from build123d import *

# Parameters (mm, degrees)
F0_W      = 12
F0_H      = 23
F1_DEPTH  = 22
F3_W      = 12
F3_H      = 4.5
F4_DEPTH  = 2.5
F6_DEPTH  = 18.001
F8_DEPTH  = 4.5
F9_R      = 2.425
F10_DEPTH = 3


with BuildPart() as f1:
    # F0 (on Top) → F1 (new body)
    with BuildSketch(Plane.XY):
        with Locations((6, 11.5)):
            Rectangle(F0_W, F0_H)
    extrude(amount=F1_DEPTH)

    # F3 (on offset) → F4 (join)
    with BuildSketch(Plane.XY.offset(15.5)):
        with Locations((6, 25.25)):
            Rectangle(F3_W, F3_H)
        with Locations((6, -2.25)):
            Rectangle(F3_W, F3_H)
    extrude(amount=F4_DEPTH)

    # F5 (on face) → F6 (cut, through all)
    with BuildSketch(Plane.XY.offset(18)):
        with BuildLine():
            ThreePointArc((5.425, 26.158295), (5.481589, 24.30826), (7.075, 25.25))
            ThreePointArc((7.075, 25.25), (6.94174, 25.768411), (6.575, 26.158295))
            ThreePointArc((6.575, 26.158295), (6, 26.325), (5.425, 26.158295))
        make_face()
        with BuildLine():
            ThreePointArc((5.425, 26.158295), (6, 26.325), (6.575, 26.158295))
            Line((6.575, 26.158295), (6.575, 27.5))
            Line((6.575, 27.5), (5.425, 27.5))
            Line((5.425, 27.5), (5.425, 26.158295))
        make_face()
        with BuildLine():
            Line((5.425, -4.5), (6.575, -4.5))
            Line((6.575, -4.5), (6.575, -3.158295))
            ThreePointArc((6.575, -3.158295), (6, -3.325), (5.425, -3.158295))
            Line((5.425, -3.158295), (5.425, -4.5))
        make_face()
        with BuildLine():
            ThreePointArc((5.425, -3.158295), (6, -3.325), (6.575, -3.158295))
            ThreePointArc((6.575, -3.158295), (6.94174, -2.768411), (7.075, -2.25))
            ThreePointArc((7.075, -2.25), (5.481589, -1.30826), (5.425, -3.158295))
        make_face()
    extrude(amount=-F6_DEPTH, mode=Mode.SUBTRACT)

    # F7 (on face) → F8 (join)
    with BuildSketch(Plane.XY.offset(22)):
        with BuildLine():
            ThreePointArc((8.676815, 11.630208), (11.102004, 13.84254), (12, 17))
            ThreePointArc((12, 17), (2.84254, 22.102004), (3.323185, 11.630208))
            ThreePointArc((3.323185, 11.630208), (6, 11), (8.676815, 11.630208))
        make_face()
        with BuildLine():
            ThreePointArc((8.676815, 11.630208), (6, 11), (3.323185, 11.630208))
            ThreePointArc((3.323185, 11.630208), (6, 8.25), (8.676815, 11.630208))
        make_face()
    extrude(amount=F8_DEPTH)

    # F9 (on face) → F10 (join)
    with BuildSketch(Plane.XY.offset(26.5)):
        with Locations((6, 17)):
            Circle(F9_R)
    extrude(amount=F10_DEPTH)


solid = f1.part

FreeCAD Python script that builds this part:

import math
import FreeCAD as App
import Part
import Sketcher


def add_polygon(sketch, points):
    """Adds a closed chain of lines whose ends are joined by coincident constraints."""
    first, n = sketch.GeometryCount, len(points)
    for a, b in zip(points, points[1:] + points[:1]):
        sketch.addGeometry(Part.LineSegment(App.Vector(*a, 0), App.Vector(*b, 0)), False)
    for i in range(n):
        sketch.addConstraint(Sketcher.Constraint("Coincident", first + i, 2, first + (i + 1) % n, 1))

doc = App.newDocument("Part")
body = doc.addObject("PartDesign::Body", "Body")

sketch1 = body.newObject("Sketcher::SketchObject", "Sketch")
sketch1.AttachmentSupport = (doc.getObject("XY_Plane"), [""])
sketch1.MapMode = "FlatFace"
add_polygon(sketch1, [(0, 23), (0, 0), (12, 0), (12, 23)])
sketch1.addConstraint([
    Sketcher.Constraint("Vertical", 0),
    Sketcher.Constraint("Horizontal", 1),
    Sketcher.Constraint("Vertical", 2),
    Sketcher.Constraint("Horizontal", 3),
    Sketcher.Constraint("Coincident", 0, 2, -1, 1),
    Sketcher.Constraint("DistanceX", 1, 1, 1, 2, 12.0),
    Sketcher.Constraint("DistanceY", 0, 2, 0, 1, 23.0),
])
pad1 = body.newObject("PartDesign::Pad", "Pad")
pad1.Profile = sketch1
pad1.Length = 22

sketch2 = body.newObject("Sketcher::SketchObject", "Sketch001")
sketch2.AttachmentSupport = (doc.getObject("XY_Plane"), [""])
sketch2.MapMode = "FlatFace"
sketch2.AttachmentOffset = App.Placement(App.Vector(0, 0, 15.5), App.Rotation())
add_polygon(sketch2, [(0, 27.5), (0, 23), (12, 23), (12, 27.5)])
add_polygon(sketch2, [(0, 0), (0, -4.5), (12, -4.5), (12, 0)])
sketch2.addConstraint([
    Sketcher.Constraint("Vertical", 0),
    Sketcher.Constraint("Horizontal", 1),
    Sketcher.Constraint("Vertical", 2),
    Sketcher.Constraint("Horizontal", 3),
    Sketcher.Constraint("Vertical", 4),
    Sketcher.Constraint("Horizontal", 5),
    Sketcher.Constraint("Vertical", 6),
    Sketcher.Constraint("Horizontal", 7),
    Sketcher.Constraint("Coincident", 7, 2, -1, 1),
    Sketcher.Constraint("PointOnObject", 0, 2, -2),
    Sketcher.Constraint("Vertical", 2, 2, 5, 2),
    Sketcher.Constraint("Equal", 2, 4),
    Sketcher.Constraint("DistanceX", 1, 1, 1, 2, 12.0),
    Sketcher.Constraint("DistanceY", 0, 2, 0, 1, 4.5),
    Sketcher.Constraint("DistanceY", -1, 1, 0, 2, 23.0),
])
pad2 = body.newObject("PartDesign::Pad", "Pad001")
pad2.Profile = sketch2
pad2.Length = 2.5

sketch3 = body.newObject("Sketcher::SketchObject", "Sketch002")
sketch3.AttachmentSupport = (doc.getObject("XY_Plane"), [""])
sketch3.MapMode = "FlatFace"
sketch3.AttachmentOffset = App.Placement(App.Vector(0, 0, 18), App.Rotation())
sketch3.addGeometry([
    Part.ArcOfCircle(Part.Circle(App.Vector(6, 25.3, 0), App.Vector(0, 0, 1), 1.1), math.radians(122), math.radians(360)),
    Part.ArcOfCircle(Part.Circle(App.Vector(6, 25.2, 0), App.Vector(0, 0, 1), 1.1), math.radians(0), math.radians(58)),
    Part.LineSegment(App.Vector(6.6, 26.2, 0), App.Vector(6.6, 27.5, 0)),
    Part.LineSegment(App.Vector(6.6, 27.5, 0), App.Vector(5.4, 27.5, 0)),
    Part.LineSegment(App.Vector(5.4, 27.5, 0), App.Vector(5.4, 26.2, 0)),
    Part.LineSegment(App.Vector(5.4, -4.5, 0), App.Vector(6.6, -4.5, 0)),
    Part.LineSegment(App.Vector(6.6, -4.5, 0), App.Vector(6.6, -3.2, 0)),
    Part.ArcOfCircle(Part.Circle(App.Vector(6, -2.2, 0), App.Vector(0, 0, 1), 1.1), math.radians(-58), math.radians(0)),
    Part.ArcOfCircle(Part.Circle(App.Vector(6, -2.3, 0), App.Vector(0, 0, 1), 1.1), math.radians(0), math.radians(238)),
    Part.LineSegment(App.Vector(5.4, -3.2, 0), App.Vector(5.4, -4.5, 0)),
], False)
sketch3.addConstraint([
    Sketcher.Constraint("Tangent", 0, 2, 1, 1),
    Sketcher.Constraint("Coincident", 1, 2, 2, 1),
    Sketcher.Constraint("Coincident", 2, 2, 3, 1),
    Sketcher.Constraint("Coincident", 3, 2, 4, 1),
    Sketcher.Constraint("Coincident", 4, 2, 0, 1),
    Sketcher.Constraint("Coincident", 5, 2, 6, 1),
    Sketcher.Constraint("Coincident", 6, 2, 7, 1),
    Sketcher.Constraint("Tangent", 7, 2, 8, 1),
    Sketcher.Constraint("Coincident", 8, 2, 9, 1),
    Sketcher.Constraint("Coincident", 9, 2, 5, 1),
    Sketcher.Constraint("Vertical", 2),
    Sketcher.Constraint("Horizontal", 3),
    Sketcher.Constraint("Vertical", 4),
    Sketcher.Constraint("Horizontal", 5),
    Sketcher.Constraint("Vertical", 6),
    Sketcher.Constraint("Vertical", 9),
    Sketcher.Constraint("Equal", 1, 7),
    Sketcher.Constraint("Equal", 0, 8),
    Sketcher.Constraint("Horizontal", 1, 3, 0, 2),
    Sketcher.Constraint("Horizontal", 1, 2, 4, 2),
    Sketcher.Constraint("Horizontal", 8, 3, 7, 2),
    Sketcher.Constraint("Horizontal", 6, 2, 8, 2),
    Sketcher.Constraint("Vertical", 1, 3, 7, 3),
    Sketcher.Constraint("Vertical", 2, 2, 5, 2),
    Sketcher.Constraint("Equal", 4, 6),
    Sketcher.Constraint("DistanceX", -1, 1, 0, 3, 6.0),
    Sketcher.Constraint("Radius", 0, 1.075),
    Sketcher.Constraint("DistanceX", 3, 2, 3, 1, 1.15),
    Sketcher.Constraint("DistanceY", -1, 1, 2, 2, 27.5),
    Sketcher.Constraint("DistanceY", 5, 2, -1, 1, 4.5),
    Sketcher.Constraint("DistanceY", 7, 3, 0, 3, 27.499999),
    Sketcher.Constraint("DistanceX", 1, 2, 0, 2, 0.5),
])
pocket1 = body.newObject("PartDesign::Pocket", "Pocket")
pocket1.Profile = sketch3
pocket1.Type = "ThroughAll"

sketch4 = body.newObject("Sketcher::SketchObject", "Sketch003")
sketch4.AttachmentSupport = (doc.getObject("XY_Plane"), [""])
sketch4.MapMode = "FlatFace"
sketch4.AttachmentOffset = App.Placement(App.Vector(0, 0, 22), App.Rotation())
sketch4.addGeometry([
    Part.ArcOfCircle(Part.Circle(App.Vector(6, 17, 0), App.Vector(0, 0, 1), 6), math.radians(-64), math.radians(0)),
    Part.ArcOfCircle(Part.Circle(App.Vector(6, 17, 0), App.Vector(0, 0, 1), 6), math.radians(0), math.radians(244)),
    Part.ArcOfCircle(Part.Circle(App.Vector(6, 11, 0), App.Vector(0, 0, 1), 2.8), math.radians(167), math.radians(373)),
], False)
sketch4.addConstraint([
    Sketcher.Constraint("Tangent", 0, 2, 1, 1),
    Sketcher.Constraint("Coincident", 1, 2, 2, 1),
    Sketcher.Constraint("Coincident", 2, 2, 0, 1),
    Sketcher.Constraint("Equal", 0, 1),
    Sketcher.Constraint("Horizontal", 1, 3, 0, 2),
    Sketcher.Constraint("Horizontal", 1, 2, 2, 2),
    Sketcher.Constraint("Radius", 1, 6.0),
    Sketcher.Constraint("Radius", 2, 2.75),
    Sketcher.Constraint("DistanceY", -1, 1, 0, 3, 17.000001),
    Sketcher.Constraint("DistanceX", -1, 1, 1, 3, 6.0),
    Sketcher.Constraint("DistanceY", -1, 1, 2, 3, 11.0),
])
pad3 = body.newObject("PartDesign::Pad", "Pad002")
pad3.Profile = sketch4
pad3.Length = 4.5

sketch5 = body.newObject("Sketcher::SketchObject", "Sketch004")
sketch5.AttachmentSupport = (doc.getObject("XY_Plane"), [""])
sketch5.MapMode = "FlatFace"
sketch5.AttachmentOffset = App.Placement(App.Vector(0, 0, 26.5), App.Rotation())
sketch5.addGeometry(Part.Circle(App.Vector(6, 17, 0), App.Vector(0, 0, 1), 2.4), False)
sketch5.addConstraint([
    Sketcher.Constraint("Diameter", 0, 4.85),
    Sketcher.Constraint("DistanceX", -1, 1, 0, 3, 6.0),
    Sketcher.Constraint("DistanceY", -1, 1, 0, 3, 17.0),
])
pad4 = body.newObject("PartDesign::Pad", "Pad003")
pad4.Profile = sketch5
pad4.Length = 3

doc.recompute()
